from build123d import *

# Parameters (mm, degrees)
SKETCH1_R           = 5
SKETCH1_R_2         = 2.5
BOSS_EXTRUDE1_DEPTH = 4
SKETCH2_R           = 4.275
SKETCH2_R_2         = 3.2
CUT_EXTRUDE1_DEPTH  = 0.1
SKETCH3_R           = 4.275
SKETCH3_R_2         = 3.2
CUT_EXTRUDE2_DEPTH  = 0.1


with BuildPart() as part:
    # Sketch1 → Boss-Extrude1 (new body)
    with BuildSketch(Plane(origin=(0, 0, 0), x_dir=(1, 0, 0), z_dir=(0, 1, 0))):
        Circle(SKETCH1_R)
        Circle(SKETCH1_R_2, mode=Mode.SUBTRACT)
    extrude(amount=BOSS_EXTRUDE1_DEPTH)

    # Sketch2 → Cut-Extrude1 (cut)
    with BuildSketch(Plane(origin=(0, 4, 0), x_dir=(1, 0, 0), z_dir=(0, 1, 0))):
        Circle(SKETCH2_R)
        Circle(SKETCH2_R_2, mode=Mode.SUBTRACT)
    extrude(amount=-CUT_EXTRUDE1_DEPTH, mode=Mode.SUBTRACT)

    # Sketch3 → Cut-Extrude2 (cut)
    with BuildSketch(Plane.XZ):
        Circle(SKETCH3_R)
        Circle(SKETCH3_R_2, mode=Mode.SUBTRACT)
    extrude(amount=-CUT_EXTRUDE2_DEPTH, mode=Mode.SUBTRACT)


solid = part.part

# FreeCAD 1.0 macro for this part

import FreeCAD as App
import Part
import Sketcher

doc = App.newDocument("Part")
body = doc.addObject("PartDesign::Body", "Body")

# Sketch on XZ plane
sketch1 = body.newObject("Sketcher::SketchObject", "Sketch")
sketch1.AttachmentSupport = (doc.getObject("XZ_Plane"), [""])
sketch1.MapMode = "FlatFace"
sketch1.addGeometry([
    Part.Circle(App.Vector(0, 0, 0), App.Vector(0, 0, 1), 5),
    Part.Circle(App.Vector(0, 0, 0), App.Vector(0, 0, 1), 2.5),
], False)
sketch1.addConstraint([
    Sketcher.Constraint("Coincident", 0, 3, -1, 1),
    Sketcher.Constraint("Coincident", 1, 3, -1, 1),
    Sketcher.Constraint("Diameter", 0, 10.0),
    Sketcher.Constraint("Diameter", 1, 5.0),
])
pad1 = body.newObject("PartDesign::Pad", "Pad")
pad1.Profile = sketch1
pad1.Length = 4
pad1.Reversed = True

# Sketch on XZ plane
sketch2 = body.newObject("Sketcher::SketchObject", "Sketch001")
sketch2.AttachmentSupport = (doc.getObject("XZ_Plane"), [""])
sketch2.MapMode = "FlatFace"
sketch2.AttachmentOffset = App.Placement(App.Vector(0, 0, -4), App.Rotation())
sketch2.addGeometry([
    Part.Circle(App.Vector(0, 0, 0), App.Vector(0, 0, 1), 4.3),
    Part.Circle(App.Vector(0, 0, 0), App.Vector(0, 0, 1), 3.2),
], False)
sketch2.addConstraint([
    Sketcher.Constraint("Coincident", 0, 3, -1, 1),
    Sketcher.Constraint("Coincident", 1, 3, -1, 1),
    Sketcher.Constraint("Diameter", 1, 6.4),
    Sketcher.Constraint("Diameter", 0, 8.55),
])
pocket1 = body.newObject("PartDesign::Pocket", "Pocket")
pocket1.Profile = sketch2
pocket1.Length = 0.1
pocket1.Reversed = True

# Sketch on XZ plane
sketch3 = body.newObject("Sketcher::SketchObject", "Sketch002")
sketch3.AttachmentSupport = (doc.getObject("XZ_Plane"), [""])
sketch3.MapMode = "FlatFace"
sketch3.addGeometry([
    Part.Circle(App.Vector(0, 0, 0), App.Vector(0, 0, 1), 4.3),
    Part.Circle(App.Vector(0, 0, 0), App.Vector(0, 0, 1), 3.2),
], False)
sketch3.addConstraint([
    Sketcher.Constraint("Coincident", 0, 3, -1, 1),
    Sketcher.Constraint("Coincident", 1, 3, -1, 1),
    Sketcher.Constraint("Diameter", 1, 6.4),
    Sketcher.Constraint("Diameter", 0, 8.55),
])
pocket2 = body.newObject("PartDesign::Pocket", "Pocket001")
pocket2.Profile = sketch3
pocket2.Length = 0.1

doc.recompute()
